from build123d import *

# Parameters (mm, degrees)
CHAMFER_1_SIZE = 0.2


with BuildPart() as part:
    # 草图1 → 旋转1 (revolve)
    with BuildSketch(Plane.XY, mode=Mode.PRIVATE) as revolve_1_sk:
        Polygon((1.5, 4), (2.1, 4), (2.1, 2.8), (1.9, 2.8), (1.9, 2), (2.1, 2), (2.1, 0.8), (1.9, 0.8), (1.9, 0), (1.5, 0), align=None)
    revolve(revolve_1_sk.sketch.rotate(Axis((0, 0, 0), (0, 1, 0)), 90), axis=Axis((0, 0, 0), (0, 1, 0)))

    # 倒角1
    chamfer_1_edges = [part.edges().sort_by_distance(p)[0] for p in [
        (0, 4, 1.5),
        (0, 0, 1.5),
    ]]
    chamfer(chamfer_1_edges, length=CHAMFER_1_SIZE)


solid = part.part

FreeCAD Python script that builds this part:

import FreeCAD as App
import Part
import Sketcher
Q = App.Units.Quantity


def edges_at(feature, points):
    """Names of the edges that pass closest to the given points."""
    edges = feature.Shape.Edges
    near = lambda p: min(range(len(edges)), key=lambda i: edges[i].distToShape(Part.Vertex(*p))[0])
    return sorted({f"Edge{near(p) + 1}" for p in points})

doc = App.newDocument("Part")
body = doc.addObject("PartDesign::Body", "Body")

sketch1 = body.newObject("Sketcher::SketchObject", "Sketch")
sketch1.AttachmentSupport = (doc.getObject("XY_Plane"), [""])
sketch1.MapMode = "FlatFace"
sketch1.addGeometry([
    Part.LineSegment(App.Vector(2.1, 4, 0), App.Vector(1.5, 4, 0)),
    Part.LineSegment(App.Vector(1.5, 4, 0), App.Vector(1.5, 0, 0)),
    Part.LineSegment(App.Vector(1.5, 0, 0), App.Vector(1.9, 0, 0)),
    Part.LineSegment(App.Vector(1.9, 0, 0), App.Vector(1.9, 0.8, 0)),
    Part.LineSegment(App.Vector(1.9, 0.8, 0), App.Vector(2.1, 0.8, 0)),
    Part.LineSegment(App.Vector(2.1, 0.8, 0), App.Vector(2.1, 2, 0)),
    Part.LineSegment(App.Vector(2.1, 2, 0), App.Vector(1.9, 2, 0)),
    Part.LineSegment(App.Vector(1.9, 2, 0), App.Vector(1.9, 2.8, 0)),
    Part.LineSegment(App.Vector(1.9, 2.8, 0), App.Vector(2.1, 2.8, 0)),
    Part.LineSegment(App.Vector(2.1, 2.8, 0), App.Vector(2.1, 4, 0)),
], False)
sketch1.addConstraint([
    Sketcher.Constraint("Coincident", 0, 2, 1, 1),
    Sketcher.Constraint("Coincident", 1, 2, 2, 1),
    Sketcher.Constraint("Coincident", 2, 2, 3, 1),
    Sketcher.Constraint("Coincident", 3, 2, 4, 1),
    Sketcher.Constraint("Coincident", 4, 2, 5, 1),
    Sketcher.Constraint("Coincident", 5, 2, 6, 1),
    Sketcher.Constraint("Coincident", 6, 2, 7, 1),
    Sketcher.Constraint("Coincident", 7, 2, 8, 1),
    Sketcher.Constraint("Coincident", 8, 2, 9, 1),
    Sketcher.Constraint("Coincident", 9, 2, 0, 1),
    Sketcher.Constraint("Horizontal", 0),
    Sketcher.Constraint("Vertical", 1),
    Sketcher.Constraint("Horizontal", 2),
    Sketcher.Constraint("Vertical", 3),
    Sketcher.Constraint("Horizontal", 4),
    Sketcher.Constraint("Vertical", 5),
    Sketcher.Constraint("Horizontal", 6),
    Sketcher.Constraint("Vertical", 7),
    Sketcher.Constraint("Horizontal", 8),
    Sketcher.Constraint("Vertical", 9),
    Sketcher.Constraint("PointOnObject", 1, 2, -1),
    Sketcher.Constraint("Vertical", 3, 2, 6, 2),
    Sketcher.Constraint("Vertical", 5, 2, 8, 2),
    Sketcher.Constraint("Equal", 3, 7),
    Sketcher.Constraint("Equal", 5, 9),
    Sketcher.Constraint("DistanceY", 1, 2, 1, 1, Q("4 mm")),
    Sketcher.Constraint("DistanceX", 0, 2, 0, 1, Q("0.6 mm")),
    Sketcher.Constraint("DistanceX", 2, 1, 2, 2, Q("0.4 mm")),
    Sketcher.Constraint("DistanceY", 3, 1, 3, 2, Q("0.8 mm")),
    Sketcher.Constraint("DistanceX", -1, 1, 0, 2, Q("1.5 mm")),
])
revolution = body.newObject("PartDesign::Revolution", "Revolution")
revolution.Profile = sketch1
revolution.ReferenceAxis = (sketch1, ["V_Axis"])
revolution.Angle = 360
doc.recompute()

chamfer = body.newObject("PartDesign::Chamfer", "Chamfer")
chamfer.Base = (revolution, edges_at(revolution, [(0, 4, 1.5), (0, 0, 1.5)]))
chamfer.Size = 0.2

doc.recompute()
